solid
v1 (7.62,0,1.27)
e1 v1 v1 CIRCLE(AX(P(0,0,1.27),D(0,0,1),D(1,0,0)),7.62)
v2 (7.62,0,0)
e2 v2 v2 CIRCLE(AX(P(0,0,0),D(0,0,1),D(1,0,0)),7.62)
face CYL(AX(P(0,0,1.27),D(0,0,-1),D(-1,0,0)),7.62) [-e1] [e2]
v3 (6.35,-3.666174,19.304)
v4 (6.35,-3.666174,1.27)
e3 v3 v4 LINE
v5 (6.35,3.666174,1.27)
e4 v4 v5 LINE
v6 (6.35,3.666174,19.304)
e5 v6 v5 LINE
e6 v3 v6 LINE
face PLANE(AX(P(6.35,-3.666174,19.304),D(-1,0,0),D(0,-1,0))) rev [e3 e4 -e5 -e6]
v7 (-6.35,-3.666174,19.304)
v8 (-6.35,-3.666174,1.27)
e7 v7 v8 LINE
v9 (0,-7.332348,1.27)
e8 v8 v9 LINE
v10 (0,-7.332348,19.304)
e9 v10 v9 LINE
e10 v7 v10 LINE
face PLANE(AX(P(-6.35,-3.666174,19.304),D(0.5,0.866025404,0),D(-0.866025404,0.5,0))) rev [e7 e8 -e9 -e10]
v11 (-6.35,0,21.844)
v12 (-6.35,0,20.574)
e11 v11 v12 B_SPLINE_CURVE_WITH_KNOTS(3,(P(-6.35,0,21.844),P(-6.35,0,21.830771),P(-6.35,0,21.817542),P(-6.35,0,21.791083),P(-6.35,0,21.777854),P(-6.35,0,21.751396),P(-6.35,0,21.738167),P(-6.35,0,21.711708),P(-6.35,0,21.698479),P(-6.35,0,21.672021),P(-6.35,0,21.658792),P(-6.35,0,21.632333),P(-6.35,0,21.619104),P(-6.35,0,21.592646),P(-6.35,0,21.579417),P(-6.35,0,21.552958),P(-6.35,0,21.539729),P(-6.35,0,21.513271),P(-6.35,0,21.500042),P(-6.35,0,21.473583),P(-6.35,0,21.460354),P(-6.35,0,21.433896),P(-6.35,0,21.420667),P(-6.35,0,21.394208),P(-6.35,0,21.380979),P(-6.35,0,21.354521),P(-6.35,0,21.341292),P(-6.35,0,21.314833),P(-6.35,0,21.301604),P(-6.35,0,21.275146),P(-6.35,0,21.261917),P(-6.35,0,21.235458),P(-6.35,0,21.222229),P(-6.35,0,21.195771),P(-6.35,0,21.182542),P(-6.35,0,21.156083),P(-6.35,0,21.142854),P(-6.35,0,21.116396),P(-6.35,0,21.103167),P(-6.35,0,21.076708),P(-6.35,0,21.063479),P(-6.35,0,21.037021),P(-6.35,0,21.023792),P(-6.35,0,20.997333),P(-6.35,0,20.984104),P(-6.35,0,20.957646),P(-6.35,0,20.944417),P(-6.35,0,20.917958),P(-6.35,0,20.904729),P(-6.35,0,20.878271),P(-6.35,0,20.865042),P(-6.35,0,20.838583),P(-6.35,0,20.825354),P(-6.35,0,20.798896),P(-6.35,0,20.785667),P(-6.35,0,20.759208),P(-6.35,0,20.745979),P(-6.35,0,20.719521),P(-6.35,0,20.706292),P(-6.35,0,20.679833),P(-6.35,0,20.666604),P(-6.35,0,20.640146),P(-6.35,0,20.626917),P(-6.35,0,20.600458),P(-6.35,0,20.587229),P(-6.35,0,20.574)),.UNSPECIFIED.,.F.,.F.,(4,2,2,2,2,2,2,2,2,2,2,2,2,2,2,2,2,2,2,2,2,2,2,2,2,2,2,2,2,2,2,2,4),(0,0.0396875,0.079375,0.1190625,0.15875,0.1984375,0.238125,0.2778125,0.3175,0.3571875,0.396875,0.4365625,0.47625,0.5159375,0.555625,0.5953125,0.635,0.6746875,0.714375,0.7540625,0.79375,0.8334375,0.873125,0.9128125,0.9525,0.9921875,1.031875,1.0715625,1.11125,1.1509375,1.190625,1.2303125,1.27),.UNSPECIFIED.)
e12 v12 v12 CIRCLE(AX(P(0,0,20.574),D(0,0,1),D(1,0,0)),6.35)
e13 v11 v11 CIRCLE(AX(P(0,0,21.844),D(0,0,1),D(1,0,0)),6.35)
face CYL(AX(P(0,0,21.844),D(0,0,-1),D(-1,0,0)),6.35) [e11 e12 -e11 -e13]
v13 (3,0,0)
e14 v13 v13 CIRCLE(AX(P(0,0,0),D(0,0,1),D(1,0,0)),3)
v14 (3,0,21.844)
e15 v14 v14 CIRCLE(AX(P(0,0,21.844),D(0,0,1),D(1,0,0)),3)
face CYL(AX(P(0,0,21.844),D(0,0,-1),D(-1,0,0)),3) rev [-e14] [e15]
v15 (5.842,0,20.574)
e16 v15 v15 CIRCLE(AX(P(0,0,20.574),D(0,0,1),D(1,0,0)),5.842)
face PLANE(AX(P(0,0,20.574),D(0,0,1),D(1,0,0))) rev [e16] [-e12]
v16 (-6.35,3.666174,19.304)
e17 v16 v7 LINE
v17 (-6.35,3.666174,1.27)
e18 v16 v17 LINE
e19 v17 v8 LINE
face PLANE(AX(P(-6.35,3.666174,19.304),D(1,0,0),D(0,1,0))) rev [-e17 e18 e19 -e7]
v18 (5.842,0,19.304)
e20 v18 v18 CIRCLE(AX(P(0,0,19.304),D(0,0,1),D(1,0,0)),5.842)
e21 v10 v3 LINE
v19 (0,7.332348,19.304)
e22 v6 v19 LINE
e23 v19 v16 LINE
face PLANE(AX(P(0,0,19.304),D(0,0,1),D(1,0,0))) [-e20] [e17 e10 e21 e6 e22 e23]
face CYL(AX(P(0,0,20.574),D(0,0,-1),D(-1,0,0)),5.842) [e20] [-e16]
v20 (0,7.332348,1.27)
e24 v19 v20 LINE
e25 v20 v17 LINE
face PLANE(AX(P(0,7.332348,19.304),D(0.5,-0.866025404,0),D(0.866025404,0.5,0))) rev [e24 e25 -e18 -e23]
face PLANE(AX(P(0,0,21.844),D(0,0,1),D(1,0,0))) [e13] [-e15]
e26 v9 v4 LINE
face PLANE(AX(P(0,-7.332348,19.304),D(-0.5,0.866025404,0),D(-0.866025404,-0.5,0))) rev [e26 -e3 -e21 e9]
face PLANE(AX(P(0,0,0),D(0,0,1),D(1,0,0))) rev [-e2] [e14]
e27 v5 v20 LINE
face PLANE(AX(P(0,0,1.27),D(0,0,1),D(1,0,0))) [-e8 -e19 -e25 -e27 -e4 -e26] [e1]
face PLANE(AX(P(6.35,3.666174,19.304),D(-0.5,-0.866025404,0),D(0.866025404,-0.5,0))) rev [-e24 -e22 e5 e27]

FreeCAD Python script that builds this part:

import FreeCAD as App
import Part
import Sketcher
Q = App.Units.Quantity

doc = App.newDocument("Part")
params = doc.addObject("Spreadsheet::Sheet", "Params")
for row, (alias, value) in enumerate([
    ("pad1_length", "0.76 in"),
    ("sketch2_diameter", "0.6 in"),
    ("pad2_length", "0.05 in"),
    ("sketch3_diameter", "0.46 in"),
    ("pad3_length", "0.05 in"),
    ("sketch4_diameter", "0.5 in"),
    ("pad4_length", "0.05 in"),
], start=1):
    params.set(f"A{row}", alias)
    params.set(f"B{row}", "=" + value)
    params.setAlias(f"B{row}", alias)

body = doc.addObject("PartDesign::Body", "Body")

# Sketch on XY plane
sketch1 = body.newObject("Sketcher::SketchObject", "Sketch")
sketch1.AttachmentSupport = (doc.getObject("XY_Plane"), [""])
sketch1.MapMode = "FlatFace"
sketch1.addGeometry([
    Part.LineSegment(App.Vector(0, 7, 0), App.Vector(-6, 4, 0)),  # 0
    Part.LineSegment(App.Vector(-6, 4, 0), App.Vector(-6, -4, 0)),  # 1
    Part.LineSegment(App.Vector(-6, -4, 0), App.Vector(0, -7, 0)),  # 2
    Part.LineSegment(App.Vector(0, -7, 0), App.Vector(6, -4, 0)),  # 3
    Part.LineSegment(App.Vector(6, -4, 0), App.Vector(6, 4, 0)),  # 4
    Part.LineSegment(App.Vector(6, 4, 0), App.Vector(0, 7, 0)),  # 5
], False)
sketch1.addConstraint([
    Sketcher.Constraint("Coincident", 0, 2, 1, 1),
    Sketcher.Constraint("Coincident", 1, 2, 2, 1),
    Sketcher.Constraint("Coincident", 2, 2, 3, 1),
    Sketcher.Constraint("Coincident", 3, 2, 4, 1),
    Sketcher.Constraint("Coincident", 4, 2, 5, 1),
    Sketcher.Constraint("Coincident", 5, 2, 0, 1),
    Sketcher.Constraint("Vertical", 1),
    Sketcher.Constraint("Vertical", 4),
    Sketcher.Constraint("Symmetric", 0, 2, 3, 2, -1, 1),
    Sketcher.Constraint("Symmetric", 2, 2, 5, 2, -1, 1),
    Sketcher.Constraint("PointOnObject", 2, 2, -2),
    Sketcher.Constraint("Parallel", 2, 5),
    Sketcher.Constraint("Horizontal", 1, 2, 3, 2),
    Sketcher.Constraint("Angle", 0, Q("-150 deg")),
    Sketcher.Constraint("DistanceX", 1, 2, 3, 2, Q("0.5 in")),
    Sketcher.Constraint("DistanceY", 1, 2, 1, 1, 7.332348),
])
pad1 = body.newObject("PartDesign::Pad", "Pad")
pad1.Profile = sketch1
pad1.setExpression("Length", "Params.pad1_length")

# Sketch on XY plane
sketch2 = body.newObject("Sketcher::SketchObject", "Sketch001")
sketch2.AttachmentSupport = (doc.getObject("XY_Plane"), [""])
sketch2.MapMode = "FlatFace"
sketch2.addGeometry(Part.Circle(App.Vector(0, 0, 0), App.Vector(0, 0, 1), 8), False)
sketch2.addConstraint([
    Sketcher.Constraint("Coincident", 0, 3, -1, 1),
    Sketcher.Constraint("Diameter", 0, Q("0.6 in")),
])
sketch2.setExpression("Constraints[1]", "Params.sketch2_diameter")
pad2 = body.newObject("PartDesign::Pad", "Pad001")
pad2.Profile = sketch2
pad2.setExpression("Length", "Params.pad2_length")

# Sketch on XY plane
sketch3 = body.newObject("Sketcher::SketchObject", "Sketch002")
sketch3.AttachmentSupport = (doc.getObject("XY_Plane"), [""])
sketch3.MapMode = "FlatFace"
sketch3.AttachmentOffset = App.Placement(App.Vector(0, 0, 0.76 * 25.4), App.Rotation())
sketch3.addGeometry(Part.Circle(App.Vector(0, 0, 0), App.Vector(0, 0, 1), 6), False)
sketch3.addConstraint([
    Sketcher.Constraint("Coincident", 0, 3, -1, 1),
    Sketcher.Constraint("Diameter", 0, Q("0.46 in")),
])
sketch3.setExpression("Constraints[1]", "Params.sketch3_diameter")
pad3 = body.newObject("PartDesign::Pad", "Pad002")
pad3.Profile = sketch3
pad3.setExpression("Length", "Params.pad3_length")

# Sketch on XY plane
sketch4 = body.newObject("Sketcher::SketchObject", "Sketch003")
sketch4.AttachmentSupport = (doc.getObject("XY_Plane"), [""])
sketch4.MapMode = "FlatFace"
sketch4.AttachmentOffset = App.Placement(App.Vector(0, 0, 0.81 * 25.4), App.Rotation())
sketch4.addGeometry(Part.Circle(App.Vector(0, 0, 0), App.Vector(0, 0, 1), 6), False)
sketch4.addConstraint([
    Sketcher.Constraint("Coincident", 0, 3, -1, 1),
    Sketcher.Constraint("Diameter", 0, Q("0.5 in")),
])
sketch4.setExpression("Constraints[1]", "Params.sketch4_diameter")
pad4 = body.newObject("PartDesign::Pad", "Pad003")
pad4.Profile = sketch4
pad4.setExpression("Length", "Params.pad4_length")

# Sketch on XY plane
sketch5 = body.newObject("Sketcher::SketchObject", "Sketch004")
sketch5.AttachmentSupport = (doc.getObject("XY_Plane"), [""])
sketch5.MapMode = "FlatFace"
sketch5.addGeometry(Part.Circle(App.Vector(0, 0, 0), App.Vector(0, 0, 1), 3), False)
sketch5.addConstraint([
    Sketcher.Constraint("Coincident", 0, 3, -1, 1),
    Sketcher.Constraint("Diameter", 0, 6.0),
])
pocket1 = body.newObject("PartDesign::Pocket", "Pocket")
pocket1.Profile = sketch5
pocket1.Type = "ThroughAll"
pocket1.Reversed = True

doc.recompute()
